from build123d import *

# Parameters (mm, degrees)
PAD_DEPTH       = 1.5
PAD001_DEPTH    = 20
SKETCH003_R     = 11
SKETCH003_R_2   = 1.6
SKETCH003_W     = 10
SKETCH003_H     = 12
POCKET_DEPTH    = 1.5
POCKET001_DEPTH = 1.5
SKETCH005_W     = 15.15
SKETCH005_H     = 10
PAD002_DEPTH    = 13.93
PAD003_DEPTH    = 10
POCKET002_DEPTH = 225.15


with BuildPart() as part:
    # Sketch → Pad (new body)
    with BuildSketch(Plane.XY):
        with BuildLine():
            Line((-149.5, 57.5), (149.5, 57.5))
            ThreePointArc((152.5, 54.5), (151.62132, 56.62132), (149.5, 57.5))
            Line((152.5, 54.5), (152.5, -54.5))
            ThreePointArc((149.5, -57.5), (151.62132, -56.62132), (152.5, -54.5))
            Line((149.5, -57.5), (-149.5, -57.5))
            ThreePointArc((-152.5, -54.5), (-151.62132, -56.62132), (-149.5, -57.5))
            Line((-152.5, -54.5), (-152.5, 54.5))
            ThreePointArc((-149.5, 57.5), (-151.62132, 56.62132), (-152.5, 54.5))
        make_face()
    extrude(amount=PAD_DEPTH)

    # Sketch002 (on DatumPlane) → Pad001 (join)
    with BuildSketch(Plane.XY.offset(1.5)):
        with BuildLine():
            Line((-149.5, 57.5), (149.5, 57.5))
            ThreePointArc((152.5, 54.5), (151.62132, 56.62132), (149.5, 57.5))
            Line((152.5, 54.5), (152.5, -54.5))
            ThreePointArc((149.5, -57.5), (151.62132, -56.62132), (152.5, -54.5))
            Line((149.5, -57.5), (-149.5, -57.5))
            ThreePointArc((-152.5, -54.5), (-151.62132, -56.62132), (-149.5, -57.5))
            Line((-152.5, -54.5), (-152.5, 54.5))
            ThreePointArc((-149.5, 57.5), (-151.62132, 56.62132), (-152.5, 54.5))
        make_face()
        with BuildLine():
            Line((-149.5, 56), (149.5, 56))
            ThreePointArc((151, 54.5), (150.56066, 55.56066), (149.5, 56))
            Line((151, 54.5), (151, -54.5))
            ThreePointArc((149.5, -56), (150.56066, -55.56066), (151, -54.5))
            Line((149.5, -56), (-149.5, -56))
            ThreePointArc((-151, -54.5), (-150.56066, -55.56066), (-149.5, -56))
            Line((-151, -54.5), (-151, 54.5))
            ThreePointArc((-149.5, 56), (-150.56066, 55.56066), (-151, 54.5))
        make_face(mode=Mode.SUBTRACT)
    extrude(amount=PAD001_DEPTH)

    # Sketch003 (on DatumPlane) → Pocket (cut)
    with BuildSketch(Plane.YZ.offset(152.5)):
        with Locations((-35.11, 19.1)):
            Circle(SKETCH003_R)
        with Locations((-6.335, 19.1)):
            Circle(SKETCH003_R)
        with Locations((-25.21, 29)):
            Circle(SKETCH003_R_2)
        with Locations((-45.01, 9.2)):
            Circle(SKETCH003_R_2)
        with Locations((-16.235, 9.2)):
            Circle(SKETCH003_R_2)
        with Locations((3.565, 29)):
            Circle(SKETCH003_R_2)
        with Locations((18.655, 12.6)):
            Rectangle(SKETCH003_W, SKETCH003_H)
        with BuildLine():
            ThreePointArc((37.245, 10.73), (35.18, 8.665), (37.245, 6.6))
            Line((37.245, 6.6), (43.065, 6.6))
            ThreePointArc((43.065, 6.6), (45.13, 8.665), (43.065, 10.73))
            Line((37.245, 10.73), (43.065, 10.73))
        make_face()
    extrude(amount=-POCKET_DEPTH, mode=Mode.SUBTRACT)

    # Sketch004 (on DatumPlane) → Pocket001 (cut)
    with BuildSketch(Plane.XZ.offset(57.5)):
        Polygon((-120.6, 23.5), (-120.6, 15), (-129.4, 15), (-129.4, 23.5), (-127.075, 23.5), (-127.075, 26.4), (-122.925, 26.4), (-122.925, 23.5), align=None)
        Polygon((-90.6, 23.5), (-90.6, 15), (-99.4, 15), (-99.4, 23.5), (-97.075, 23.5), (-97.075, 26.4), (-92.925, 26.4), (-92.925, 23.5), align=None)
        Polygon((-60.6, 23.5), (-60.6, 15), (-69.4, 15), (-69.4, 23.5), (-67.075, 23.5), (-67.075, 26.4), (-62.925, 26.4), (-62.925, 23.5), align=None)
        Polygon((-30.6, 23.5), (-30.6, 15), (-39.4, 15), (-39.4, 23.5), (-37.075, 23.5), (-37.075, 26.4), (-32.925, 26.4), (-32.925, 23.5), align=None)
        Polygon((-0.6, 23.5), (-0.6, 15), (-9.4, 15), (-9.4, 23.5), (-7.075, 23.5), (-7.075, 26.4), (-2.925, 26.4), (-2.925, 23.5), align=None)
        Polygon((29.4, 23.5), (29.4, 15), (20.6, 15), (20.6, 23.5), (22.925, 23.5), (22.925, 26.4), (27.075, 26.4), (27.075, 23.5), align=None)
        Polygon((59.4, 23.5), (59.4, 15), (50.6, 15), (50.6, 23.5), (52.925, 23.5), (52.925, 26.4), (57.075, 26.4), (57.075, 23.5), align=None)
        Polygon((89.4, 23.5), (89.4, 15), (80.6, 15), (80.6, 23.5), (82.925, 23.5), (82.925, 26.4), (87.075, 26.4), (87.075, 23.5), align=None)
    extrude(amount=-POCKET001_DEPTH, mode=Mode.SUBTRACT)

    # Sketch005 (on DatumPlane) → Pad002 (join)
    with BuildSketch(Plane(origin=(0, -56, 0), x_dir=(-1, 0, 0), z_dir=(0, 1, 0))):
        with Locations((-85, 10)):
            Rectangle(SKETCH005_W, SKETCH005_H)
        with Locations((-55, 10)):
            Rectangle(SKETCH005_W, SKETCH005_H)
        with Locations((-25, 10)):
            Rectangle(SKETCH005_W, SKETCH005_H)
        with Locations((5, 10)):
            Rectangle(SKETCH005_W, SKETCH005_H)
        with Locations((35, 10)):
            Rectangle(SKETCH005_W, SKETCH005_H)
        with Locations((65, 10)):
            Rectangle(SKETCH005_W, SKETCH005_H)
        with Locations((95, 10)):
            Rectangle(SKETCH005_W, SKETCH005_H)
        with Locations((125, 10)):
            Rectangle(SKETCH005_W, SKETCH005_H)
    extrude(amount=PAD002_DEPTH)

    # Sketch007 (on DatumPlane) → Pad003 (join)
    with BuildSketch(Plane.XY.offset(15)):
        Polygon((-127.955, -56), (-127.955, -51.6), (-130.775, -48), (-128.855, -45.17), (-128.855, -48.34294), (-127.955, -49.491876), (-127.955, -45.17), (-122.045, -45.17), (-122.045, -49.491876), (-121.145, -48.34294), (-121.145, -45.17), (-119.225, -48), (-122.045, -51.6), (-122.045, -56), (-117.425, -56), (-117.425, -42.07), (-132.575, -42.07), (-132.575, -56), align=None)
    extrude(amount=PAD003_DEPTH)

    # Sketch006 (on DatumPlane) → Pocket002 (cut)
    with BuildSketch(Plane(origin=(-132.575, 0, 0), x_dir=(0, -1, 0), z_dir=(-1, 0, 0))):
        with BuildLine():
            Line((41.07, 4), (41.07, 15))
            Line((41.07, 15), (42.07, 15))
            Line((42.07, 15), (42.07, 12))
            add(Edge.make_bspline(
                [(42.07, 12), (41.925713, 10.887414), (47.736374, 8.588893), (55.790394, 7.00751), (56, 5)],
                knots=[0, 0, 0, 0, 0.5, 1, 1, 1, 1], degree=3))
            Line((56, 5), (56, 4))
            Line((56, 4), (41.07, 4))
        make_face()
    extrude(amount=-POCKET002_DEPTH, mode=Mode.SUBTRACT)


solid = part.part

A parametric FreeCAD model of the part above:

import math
import FreeCAD as App
import Part
import Sketcher
Q = App.Units.Quantity


def add_polygon(sketch, points):
    """Adds a closed chain of lines whose ends are joined by coincident constraints."""
    first, n = sketch.GeometryCount, len(points)
    for a, b in zip(points, points[1:] + points[:1]):
        sketch.addGeometry(Part.LineSegment(App.Vector(*a, 0), App.Vector(*b, 0)), False)
    for i in range(n):
        sketch.addConstraint(Sketcher.Constraint("Coincident", first + i, 2, first + (i + 1) % n, 1))

doc = App.newDocument("Part")
body = doc.addObject("PartDesign::Body", "Body")

# Sketch on XY plane
sketch1 = body.newObject("Sketcher::SketchObject", "Sketch")
sketch1.AttachmentSupport = (doc.getObject("XY_Plane"), [""])
sketch1.MapMode = "FlatFace"
sketch1.addGeometry([
    Part.LineSegment(App.Vector(149.5, 57.5, 0), App.Vector(-149.5, 57.5, 0)),  # 0
    Part.ArcOfCircle(Part.Circle(App.Vector(-149.5, 54.5, 0), App.Vector(0, 0, 1), 3), math.radians(90), math.radians(180)),  # 1
    Part.LineSegment(App.Vector(-152.5, 54.5, 0), App.Vector(-152.5, -54.5, 0)),  # 2
    Part.ArcOfCircle(Part.Circle(App.Vector(-149.5, -54.5, 0), App.Vector(0, 0, 1), 3), math.radians(-180), math.radians(-90)),  # 3
    Part.LineSegment(App.Vector(-149.5, -57.5, 0), App.Vector(149.5, -57.5, 0)),  # 4
    Part.ArcOfCircle(Part.Circle(App.Vector(149.5, -54.5, 0), App.Vector(0, 0, 1), 3), math.radians(-90), math.radians(0)),  # 5
    Part.LineSegment(App.Vector(152.5, -54.5, 0), App.Vector(152.5, 54.5, 0)),  # 6
    Part.ArcOfCircle(Part.Circle(App.Vector(149.5, 54.5, 0), App.Vector(0, 0, 1), 3), math.radians(0), math.radians(90)),  # 7
], False)
sketch1.addConstraint([
    Sketcher.Constraint("Tangent", 0, 2, 1, 1),
    Sketcher.Constraint("Tangent", 1, 2, 2, 1),
    Sketcher.Constraint("Tangent", 2, 2, 3, 1),
    Sketcher.Constraint("Tangent", 3, 2, 4, 1),
    Sketcher.Constraint("Tangent", 4, 2, 5, 1),
    Sketcher.Constraint("Tangent", 5, 2, 6, 1),
    Sketcher.Constraint("Tangent", 6, 2, 7, 1),
    Sketcher.Constraint("Tangent", 7, 2, 0, 1),
    Sketcher.Constraint("Horizontal", 0),
    Sketcher.Constraint("Vertical", 2),
    Sketcher.Constraint("Horizontal", 4),
    Sketcher.Constraint("Vertical", 6),
    Sketcher.Constraint("Equal", 1, 3),
    Sketcher.Constraint("Equal", 3, 5),
    Sketcher.Constraint("Equal", 5, 7),
    Sketcher.Constraint("Symmetric", 1, 3, 5, 3, -1, 1),
    Sketcher.Constraint("Radius", 1, Q("3.000001 mm")),
    Sketcher.Constraint("DistanceX", 0, 2, 0, 1, Q("299 mm")),
    Sketcher.Constraint("DistanceY", 2, 2, 2, 1, Q("109 mm")),
])
pad1 = body.newObject("PartDesign::Pad", "Pad")
pad1.Profile = sketch1
pad1.Length = 1.5

# Sketch on XY plane
sketch2 = body.newObject("Sketcher::SketchObject", "Sketch001")
sketch2.AttachmentSupport = (doc.getObject("XY_Plane"), [""])
sketch2.MapMode = "FlatFace"
sketch2.AttachmentOffset = App.Placement(App.Vector(0, 0, 1.5), App.Rotation())
sketch2.addGeometry([
    Part.LineSegment(App.Vector(149.5, 57.5, 0), App.Vector(-149.5, 57.5, 0)),  # 0
    Part.ArcOfCircle(Part.Circle(App.Vector(-149.5, 54.5, 0), App.Vector(0, 0, 1), 3), math.radians(90), math.radians(180)),  # 1
    Part.LineSegment(App.Vector(-152.5, 54.5, 0), App.Vector(-152.5, -54.5, 0)),  # 2
    Part.ArcOfCircle(Part.Circle(App.Vector(-149.5, -54.5, 0), App.Vector(0, 0, 1), 3), math.radians(-180), math.radians(-90)),  # 3
    Part.LineSegment(App.Vector(-149.5, -57.5, 0), App.Vector(149.5, -57.5, 0)),  # 4
    Part.ArcOfCircle(Part.Circle(App.Vector(149.5, -54.5, 0), App.Vector(0, 0, 1), 3), math.radians(-90), math.radians(0)),  # 5
    Part.LineSegment(App.Vector(152.5, -54.5, 0), App.Vector(152.5, 54.5, 0)),  # 6
    Part.ArcOfCircle(Part.Circle(App.Vector(149.5, 54.5, 0), App.Vector(0, 0, 1), 3), math.radians(0), math.radians(90)),  # 7
    Part.LineSegment(App.Vector(-149.5, 56, 0), App.Vector(149.5, 56, 0)),  # 8
    Part.ArcOfCircle(Part.Circle(App.Vector(149.5, 54.5, 0), App.Vector(0, 0, 1), 1.5), math.radians(0), math.radians(90)),  # 9
    Part.LineSegment(App.Vector(151, 54.5, 0), App.Vector(151, -54.5, 0)),  # 10
    Part.ArcOfCircle(Part.Circle(App.Vector(149.5, -54.5, 0), App.Vector(0, 0, 1), 1.5), math.radians(-90), math.radians(0)),  # 11
    Part.LineSegment(App.Vector(149.5, -56, 0), App.Vector(-149.5, -56, 0)),  # 12
    Part.ArcOfCircle(Part.Circle(App.Vector(-149.5, -54.5, 0), App.Vector(0, 0, 1), 1.5), math.radians(-180), math.radians(-90)),  # 13
    Part.LineSegment(App.Vector(-151, -54.5, 0), App.Vector(-151, 54.5, 0)),  # 14
    Part.ArcOfCircle(Part.Circle(App.Vector(-149.5, 54.5, 0), App.Vector(0, 0, 1), 1.5), math.radians(90), math.radians(180)),  # 15
], False)
sketch2.addConstraint([
    Sketcher.Constraint("Tangent", 0, 2, 1, 1),
    Sketcher.Constraint("Tangent", 1, 2, 2, 1),
    Sketcher.Constraint("Tangent", 2, 2, 3, 1),
    Sketcher.Constraint("Tangent", 3, 2, 4, 1),
    Sketcher.Constraint("Tangent", 4, 2, 5, 1),
    Sketcher.Constraint("Tangent", 5, 2, 6, 1),
    Sketcher.Constraint("Tangent", 6, 2, 7, 1),
    Sketcher.Constraint("Tangent", 7, 2, 0, 1),
    Sketcher.Constraint("Tangent", 8, 2, 9, 2),
    Sketcher.Constraint("Tangent", 9, 1, 10, 1),
    Sketcher.Constraint("Tangent", 10, 2, 11, 2),
    Sketcher.Constraint("Tangent", 11, 1, 12, 1),
    Sketcher.Constraint("Tangent", 12, 2, 13, 2),
    Sketcher.Constraint("Tangent", 13, 1, 14, 1),
    Sketcher.Constraint("Tangent", 14, 2, 15, 2),
    Sketcher.Constraint("Tangent", 15, 1, 8, 1),
    Sketcher.Constraint("Horizontal", 0),
    Sketcher.Constraint("Vertical", 2),
    Sketcher.Constraint("Horizontal", 4),
    Sketcher.Constraint("Vertical", 6),
    Sketcher.Constraint("Horizontal", 8),
    Sketcher.Constraint("Vertical", 10),
    Sketcher.Constraint("Horizontal", 12),
    Sketcher.Constraint("Vertical", 14),
    Sketcher.Constraint("Coincident", 9, 3, 7, 3),
    Sketcher.Constraint("Coincident", 11, 3, 5, 3),
    Sketcher.Constraint("Coincident", 13, 3, 3, 3),
    Sketcher.Constraint("Equal", 1, 3),
    Sketcher.Constraint("Equal", 3, 5),
    Sketcher.Constraint("Equal", 5, 7),
    Sketcher.Constraint("Equal", 13, 15),
    Sketcher.Constraint("Symmetric", 1, 3, 5, 3, -1, 1),
    Sketcher.Constraint("Radius", 1, Q("3.000001 mm")),
    Sketcher.Constraint("Radius", 9, Q("1.500001 mm")),
    Sketcher.Constraint("DistanceX", 0, 2, 0, 1, Q("299 mm")),
    Sketcher.Constraint("DistanceY", 2, 2, 2, 1, Q("109 mm")),
])
pad2 = body.newObject("PartDesign::Pad", "Pad001")
pad2.Profile = sketch2
pad2.Length = 20

# Sketch on YZ plane
sketch3 = body.newObject("Sketcher::SketchObject", "Sketch002")
sketch3.AttachmentSupport = (doc.getObject("YZ_Plane"), [""])
sketch3.MapMode = "FlatFace"
sketch3.AttachmentOffset = App.Placement(App.Vector(0, 0, 152.5), App.Rotation())
sketch3.addGeometry(Part.Circle(App.Vector(-35.1, 19.1, 0), App.Vector(0, 0, 1), 11), False)  # 0
sketch3.addGeometry(Part.Circle(App.Vector(-6.3, 19.1, 0), App.Vector(0, 0, 1), 11), False)  # 1
sketch3.addGeometry(Part.Circle(App.Vector(-25.2, 29, 0), App.Vector(0, 0, 1), 1.6), False)  # 2
sketch3.addGeometry(Part.Circle(App.Vector(-45, 9.2, 0), App.Vector(0, 0, 1), 1.6), False)  # 3
sketch3.addGeometry(Part.Circle(App.Vector(-16.2, 9.2, 0), App.Vector(0, 0, 1), 1.6), False)  # 4
sketch3.addGeometry(Part.Circle(App.Vector(3.6, 29, 0), App.Vector(0, 0, 1), 1.6), False)  # 5
add_polygon(sketch3, [(13.7, 18.6), (13.7, 6.6), (23.7, 6.6), (23.7, 18.6)])  # lines 6-9
sketch3.addGeometry(Part.ArcOfCircle(Part.Circle(App.Vector(37.2, 8.7, 0), App.Vector(0, 0, 1), 2.1), math.radians(90), math.radians(270)), False)  # 10
sketch3.addGeometry(Part.LineSegment(App.Vector(37.2, 6.6, 0), App.Vector(43.1, 6.6, 0)), False)  # 11
sketch3.addGeometry(Part.ArcOfCircle(Part.Circle(App.Vector(43.1, 8.7, 0), App.Vector(0, 0, 1), 2.1), math.radians(-90), math.radians(90)), False)  # 12
sketch3.addGeometry(Part.LineSegment(App.Vector(43.1, 10.7, 0), App.Vector(37.2, 10.7, 0)), False)  # 13
sketch3.addConstraint([
    Sketcher.Constraint("Tangent", 10, 2, 11, 1),
    Sketcher.Constraint("Tangent", 11, 2, 12, 1),
    Sketcher.Constraint("Tangent", 12, 2, 13, 1),
    Sketcher.Constraint("Tangent", 13, 2, 10, 1),
    Sketcher.Constraint("Vertical", 6),
    Sketcher.Constraint("Horizontal", 7),
    Sketcher.Constraint("Vertical", 8),
    Sketcher.Constraint("Horizontal", 9),
    Sketcher.Constraint("Horizontal", 11),
    Sketcher.Constraint("Horizontal", 13),
    Sketcher.Constraint("Equal", 0, 1),
    Sketcher.Constraint("Equal", 2, 3),
    Sketcher.Constraint("Equal", 3, 4),
    Sketcher.Constraint("Equal", 4, 5),
    Sketcher.Constraint("Horizontal", 0, 3, 1, 3),
    Sketcher.Constraint("Horizontal", 3, 3, 4, 3),
    Sketcher.Constraint("Horizontal", 2, 3, 5, 3),
    Sketcher.Constraint("Horizontal", 7, 2, 10, 2),
    Sketcher.Constraint("Diameter", 0, Q("22 mm")),
    Sketcher.Constraint("Diameter", 2, Q("3.2 mm")),
    Sketcher.Constraint("DistanceX", 7, 1, 7, 2, Q("10 mm")),
    Sketcher.Constraint("DistanceY", 6, 2, 6, 1, Q("12 mm")),
    Sketcher.Constraint("DistanceY", -1, 1, 2, 3, Q("29 mm")),
    Sketcher.Constraint("Radius", 10, Q("2.065 mm")),
    Sketcher.Constraint("DistanceX", 11, 1, 11, 2, Q("5.82 mm")),
    Sketcher.Constraint("DistanceY", -1, 1, 0, 3, Q("19.1 mm")),
    Sketcher.Constraint("DistanceY", -1, 1, 3, 3, Q("9.2 mm")),
    Sketcher.Constraint("DistanceY", -1, 1, 6, 2, Q("6.6 mm")),
    Sketcher.Constraint("DistanceX", 0, 3, 2, 3, Q("9.9 mm")),
    Sketcher.Constraint("DistanceX", 3, 3, 0, 3, Q("9.9 mm")),
    Sketcher.Constraint("DistanceX", 4, 3, 1, 3, Q("9.9 mm")),
    Sketcher.Constraint("DistanceX", 1, 3, 5, 3, Q("9.9 mm")),
    Sketcher.Constraint("DistanceX", 5, 3, 12, 3, Q("39.5 mm")),
    Sketcher.Constraint("DistanceX", 0, 3, -1, 1, Q("35.11 mm")),
    Sketcher.Constraint("DistanceX", 1, 3, 6, 2, Q("19.99 mm")),
    Sketcher.Constraint("DistanceX", 1, 3, -1, 1, Q("6.335 mm")),
])
pocket1 = body.newObject("PartDesign::Pocket", "Pocket")
pocket1.Profile = sketch3
pocket1.Length = 1.5

# Sketch on XZ plane
sketch4 = body.newObject("Sketcher::SketchObject", "Sketch003")
sketch4.AttachmentSupport = (doc.getObject("XZ_Plane"), [""])
sketch4.MapMode = "FlatFace"
sketch4.AttachmentOffset = App.Placement(App.Vector(0, 0, 57.5), App.Rotation())
add_polygon(sketch4, [(-120.6, 15), (-120.6, 23.5), (-122.9, 23.5), (-122.9, 26.4), (-127.1, 26.4), (-127.1, 23.5), (-129.4, 23.5), (-129.4, 15)])  # lines 0-7
add_polygon(sketch4, [(-90.6, 15), (-90.6, 23.5), (-92.9, 23.5), (-92.9, 26.4), (-97.1, 26.4), (-97.1, 23.5), (-99.4, 23.5), (-99.4, 15)])  # lines 8-15
add_polygon(sketch4, [(-60.6, 15), (-60.6, 23.5), (-62.9, 23.5), (-62.9, 26.4), (-67.1, 26.4), (-67.1, 23.5), (-69.4, 23.5), (-69.4, 15)])  # lines 16-23
add_polygon(sketch4, [(-30.6, 15), (-30.6, 23.5), (-32.9, 23.5), (-32.9, 26.4), (-37.1, 26.4), (-37.1, 23.5), (-39.4, 23.5), (-39.4, 15)])  # lines 24-31
add_polygon(sketch4, [(-0.6, 15), (-0.6, 23.5), (-2.9, 23.5), (-2.9, 26.4), (-7.1, 26.4), (-7.1, 23.5), (-9.4, 23.5), (-9.4, 15)])  # lines 32-39
add_polygon(sketch4, [(29.4, 15), (29.4, 23.5), (27.1, 23.5), (27.1, 26.4), (22.9, 26.4), (22.9, 23.5), (20.6, 23.5), (20.6, 15)])  # lines 40-47
add_polygon(sketch4, [(59.4, 15), (59.4, 23.5), (57.1, 23.5), (57.1, 26.4), (52.9, 26.4), (52.9, 23.5), (50.6, 23.5), (50.6, 15)])  # lines 48-55
add_polygon(sketch4, [(89.4, 15), (89.4, 23.5), (87.1, 23.5), (87.1, 26.4), (82.9, 26.4), (82.9, 23.5), (80.6, 23.5), (80.6, 15)])  # lines 56-63
sketch4.addConstraint([
    Sketcher.Constraint("Vertical", 0),
    Sketcher.Constraint("Horizontal", 1),
    Sketcher.Constraint("Vertical", 2),
    Sketcher.Constraint("Horizontal", 3),
    Sketcher.Constraint("Vertical", 4),
    Sketcher.Constraint("Horizontal", 5),
    Sketcher.Constraint("Vertical", 6),
    Sketcher.Constraint("Horizontal", 7),
    Sketcher.Constraint("Vertical", 8),
    Sketcher.Constraint("Horizontal", 9),
    Sketcher.Constraint("Vertical", 10),
    Sketcher.Constraint("Horizontal", 11),
    Sketcher.Constraint("Vertical", 12),
    Sketcher.Constraint("Horizontal", 13),
    Sketcher.Constraint("Vertical", 14),
    Sketcher.Constraint("Horizontal", 15),
    Sketcher.Constraint("Vertical", 16),
    Sketcher.Constraint("Horizontal", 17),
    Sketcher.Constraint("Vertical", 18),
    Sketcher.Constraint("Horizontal", 19),
    Sketcher.Constraint("Vertical", 20),
    Sketcher.Constraint("Horizontal", 21),
    Sketcher.Constraint("Vertical", 22),
    Sketcher.Constraint("Horizontal", 23),
    Sketcher.Constraint("Vertical", 24),
    Sketcher.Constraint("Horizontal", 25),
    Sketcher.Constraint("Vertical", 26),
    Sketcher.Constraint("Horizontal", 27),
    Sketcher.Constraint("Vertical", 28),
    Sketcher.Constraint("Horizontal", 29),
    Sketcher.Constraint("Vertical", 30),
    Sketcher.Constraint("Horizontal", 31),
    Sketcher.Constraint("Vertical", 32),
    Sketcher.Constraint("Horizontal", 33),
    Sketcher.Constraint("Vertical", 34),
    Sketcher.Constraint("Horizontal", 35),
    Sketcher.Constraint("Vertical", 36),
    Sketcher.Constraint("Horizontal", 37),
    Sketcher.Constraint("Vertical", 38),
    Sketcher.Constraint("Horizontal", 39),
    Sketcher.Constraint("Vertical", 40),
    Sketcher.Constraint("Horizontal", 41),
    Sketcher.Constraint("Vertical", 42),
    Sketcher.Constraint("Horizontal", 43),
    Sketcher.Constraint("Vertical", 44),
    Sketcher.Constraint("Horizontal", 45),
    Sketcher.Constraint("Vertical", 46),
    Sketcher.Constraint("Horizontal", 47),
    Sketcher.Constraint("Vertical", 48),
    Sketcher.Constraint("Horizontal", 49),
    Sketcher.Constraint("Vertical", 50),
    Sketcher.Constraint("Horizontal", 51),
    Sketcher.Constraint("Vertical", 52),
    Sketcher.Constraint("Horizontal", 53),
    Sketcher.Constraint("Vertical", 54),
    Sketcher.Constraint("Horizontal", 55),
    Sketcher.Constraint("Vertical", 56),
    Sketcher.Constraint("Horizontal", 57),
    Sketcher.Constraint("Vertical", 58),
    Sketcher.Constraint("Horizontal", 59),
    Sketcher.Constraint("Vertical", 60),
    Sketcher.Constraint("Horizontal", 61),
    Sketcher.Constraint("Vertical", 62),
    Sketcher.Constraint("Horizontal", 63),
    Sketcher.Constraint("Horizontal", 1, 2, 4, 2),
    Sketcher.Constraint("Horizontal", 5, 2, 8, 2),
    Sketcher.Constraint("Horizontal", 3, 2, 10, 2),
    Sketcher.Constraint("Horizontal", 9, 2, 12, 2),
    Sketcher.Constraint("Horizontal", 7, 2, 14, 2),
    Sketcher.Constraint("Horizontal", 13, 2, 16, 2),
    Sketcher.Constraint("Horizontal", 11, 2, 18, 2),
    Sketcher.Constraint("Horizontal", 17, 2, 20, 2),
    Sketcher.Constraint("Horizontal", 15, 2, 22, 2),
    Sketcher.Constraint("Horizontal", 21, 2, 24, 2),
    Sketcher.Constraint("Horizontal", 19, 2, 26, 2),
    Sketcher.Constraint("Horizontal", 25, 2, 28, 2),
    Sketcher.Constraint("Horizontal", 23, 2, 30, 2),
    Sketcher.Constraint("Horizontal", 29, 2, 32, 2),
    Sketcher.Constraint("Horizontal", 27, 2, 34, 2),
    Sketcher.Constraint("Horizontal", 33, 2, 36, 2),
    Sketcher.Constraint("Horizontal", 31, 2, 38, 2),
    Sketcher.Constraint("Horizontal", 37, 2, 40, 2),
    Sketcher.Constraint("Horizontal", 35, 2, 42, 2),
    Sketcher.Constraint("Horizontal", 41, 2, 44, 2),
    Sketcher.Constraint("Horizontal", 39, 2, 46, 2),
    Sketcher.Constraint("Horizontal", 45, 2, 48, 2),
    Sketcher.Constraint("Horizontal", 43, 2, 50, 2),
    Sketcher.Constraint("Horizontal", 49, 2, 52, 2),
    Sketcher.Constraint("Horizontal", 47, 2, 54, 2),
    Sketcher.Constraint("Horizontal", 53, 2, 56, 2),
    Sketcher.Constraint("Horizontal", 51, 2, 58, 2),
    Sketcher.Constraint("Horizontal", 57, 2, 60, 2),
    Sketcher.Constraint("Horizontal", 55, 2, 62, 2),
    Sketcher.Constraint("Equal", 1, 5),
    Sketcher.Constraint("Equal", 5, 9),
    Sketcher.Constraint("Equal", 3, 11),
    Sketcher.Constraint("Equal", 9, 13),
    Sketcher.Constraint("Equal", 13, 17),
    Sketcher.Constraint("Equal", 11, 19),
    Sketcher.Constraint("Equal", 17, 21),
    Sketcher.Constraint("Equal", 21, 25),
    Sketcher.Constraint("Equal", 19, 27),
    Sketcher.Constraint("Equal", 25, 29),
    Sketcher.Constraint("Equal", 29, 33),
    Sketcher.Constraint("Equal", 27, 35),
    Sketcher.Constraint("Equal", 33, 37),
    Sketcher.Constraint("Equal", 37, 41),
    Sketcher.Constraint("Equal", 35, 43),
    Sketcher.Constraint("Equal", 41, 45),
    Sketcher.Constraint("Equal", 45, 49),
    Sketcher.Constraint("Equal", 43, 51),
    Sketcher.Constraint("Equal", 49, 53),
    Sketcher.Constraint("Equal", 53, 57),
    Sketcher.Constraint("Equal", 51, 59),
    Sketcher.Constraint("Equal", 57, 61),
    Sketcher.Constraint("DistanceX", 7, 1, 7, 2, Q("8.8 mm")),
    Sketcher.Constraint("DistanceY", 0, 1, 0, 2, Q("8.5 mm")),
    Sketcher.Constraint("DistanceY", 2, 1, 2, 2, Q("2.9 mm")),
    Sketcher.Constraint("DistanceY", -1, 1, 6, 2, Q("15 mm")),
    Sketcher.Constraint("DistanceX", 3, 2, 3, 1, Q("4.15 mm")),
    Sketcher.Constraint("DistanceX", 0, 2, -1, 1, Q("120.6 mm")),
    Sketcher.Constraint("DistanceX", 8, 2, -1, 1, Q("90.6 mm")),
    Sketcher.Constraint("DistanceX", 16, 2, -1, 1, Q("60.6 mm")),
    Sketcher.Constraint("DistanceX", 24, 2, -1, 1, Q("30.6 mm")),
    Sketcher.Constraint("DistanceX", 32, 2, -1, 1, Q("0.6 mm")),
    Sketcher.Constraint("DistanceX", -1, 1, 40, 2, Q("29.4 mm")),
    Sketcher.Constraint("DistanceX", -1, 1, 48, 2, Q("59.4 mm")),
    Sketcher.Constraint("DistanceX", -1, 1, 56, 2, Q("89.4 mm")),
])
pocket2 = body.newObject("PartDesign::Pocket", "Pocket001")
pocket2.Profile = sketch4
pocket2.Length = 1.5

# Sketch on XZ plane
sketch5 = body.newObject("Sketcher::SketchObject", "Sketch004")
sketch5.AttachmentSupport = (doc.getObject("XZ_Plane"), [""])
sketch5.MapMode = "FlatFace"
sketch5.AttachmentOffset = App.Placement(App.Vector(0, 0, 56), App.Rotation())
add_polygon(sketch5, [(93, 15), (93, 5), (77, 5), (77, 15)])  # lines 0-3
add_polygon(sketch5, [(63, 15), (63, 5), (47, 5), (47, 15)])  # lines 4-7
add_polygon(sketch5, [(33, 15), (33, 5), (17, 5), (17, 15)])  # lines 8-11
add_polygon(sketch5, [(3, 15), (3, 5), (-13, 5), (-13, 15)])  # lines 12-15
add_polygon(sketch5, [(-27, 15), (-27, 5), (-43, 5), (-43, 15)])  # lines 16-19
add_polygon(sketch5, [(-57, 15), (-57, 5), (-73, 5), (-73, 15)])  # lines 20-23
add_polygon(sketch5, [(-87, 15), (-87, 5), (-103, 5), (-103, 15)])  # lines 24-27
add_polygon(sketch5, [(-117, 15), (-117, 5), (-133, 5), (-133, 15)])  # lines 28-31
sketch5.addConstraint([
    Sketcher.Constraint("Vertical", 0),
    Sketcher.Constraint("Horizontal", 1),
    Sketcher.Constraint("Vertical", 2),
    Sketcher.Constraint("Horizontal", 3),
    Sketcher.Constraint("Vertical", 4),
    Sketcher.Constraint("Horizontal", 5),
    Sketcher.Constraint("Vertical", 6),
    Sketcher.Constraint("Horizontal", 7),
    Sketcher.Constraint("Vertical", 8),
    Sketcher.Constraint("Horizontal", 9),
    Sketcher.Constraint("Vertical", 10),
    Sketcher.Constraint("Horizontal", 11),
    Sketcher.Constraint("Vertical", 12),
    Sketcher.Constraint("Horizontal", 13),
    Sketcher.Constraint("Vertical", 14),
    Sketcher.Constraint("Horizontal", 15),
    Sketcher.Constraint("Vertical", 16),
    Sketcher.Constraint("Horizontal", 17),
    Sketcher.Constraint("Vertical", 18),
    Sketcher.Constraint("Horizontal", 19),
    Sketcher.Constraint("Vertical", 20),
    Sketcher.Constraint("Horizontal", 21),
    Sketcher.Constraint("Vertical", 22),
    Sketcher.Constraint("Horizontal", 23),
    Sketcher.Constraint("Vertical", 24),
    Sketcher.Constraint("Horizontal", 25),
    Sketcher.Constraint("Vertical", 26),
    Sketcher.Constraint("Horizontal", 27),
    Sketcher.Constraint("Vertical", 28),
    Sketcher.Constraint("Horizontal", 29),
    Sketcher.Constraint("Vertical", 30),
    Sketcher.Constraint("Horizontal", 31),
    Sketcher.Constraint("Horizontal", 1, 2, 4, 2),
    Sketcher.Constraint("Horizontal", 3, 2, 6, 2),
    Sketcher.Constraint("Horizontal", 5, 2, 8, 2),
    Sketcher.Constraint("Horizontal", 7, 2, 10, 2),
    Sketcher.Constraint("Horizontal", 9, 2, 12, 2),
    Sketcher.Constraint("Horizontal", 11, 2, 14, 2),
    Sketcher.Constraint("Horizontal", 13, 2, 16, 2),
    Sketcher.Constraint("Horizontal", 15, 2, 18, 2),
    Sketcher.Constraint("Horizontal", 17, 2, 20, 2),
    Sketcher.Constraint("Horizontal", 19, 2, 22, 2),
    Sketcher.Constraint("Horizontal", 21, 2, 24, 2),
    Sketcher.Constraint("Horizontal", 23, 2, 26, 2),
    Sketcher.Constraint("Horizontal", 25, 2, 28, 2),
    Sketcher.Constraint("Horizontal", 27, 2, 30, 2),
    Sketcher.Constraint("Equal", 3, 5),
    Sketcher.Constraint("Equal", 7, 9),
    Sketcher.Constraint("Equal", 11, 13),
    Sketcher.Constraint("Equal", 15, 17),
    Sketcher.Constraint("Equal", 19, 21),
    Sketcher.Constraint("Equal", 23, 25),
    Sketcher.Constraint("Equal", 27, 29),
    Sketcher.Constraint("DistanceY", 0, 2, 0, 1, Q("10 mm")),
    Sketcher.Constraint("DistanceY", -1, 1, 0, 2, Q("5 mm")),
    Sketcher.Constraint("DistanceX", 4, 2, 0, 2, Q("30 mm")),
    Sketcher.Constraint("DistanceX", 8, 2, 4, 2, Q("30 mm")),
    Sketcher.Constraint("DistanceX", 12, 2, 8, 2, Q("30 mm")),
    Sketcher.Constraint("DistanceX", 16, 2, 12, 2, Q("30 mm")),
    Sketcher.Constraint("DistanceX", 20, 2, 16, 2, Q("30 mm")),
    Sketcher.Constraint("DistanceX", 24, 2, 20, 2, Q("30 mm")),
    Sketcher.Constraint("DistanceX", 28, 2, 24, 2, Q("30 mm")),
    Sketcher.Constraint("DistanceX", 1, 2, 1, 1, Q("15.15 mm")),
    Sketcher.Constraint("DistanceX", -1, 1, 0, 2, Q("92.575 mm")),
])
pad3 = body.newObject("PartDesign::Pad", "Pad002")
pad3.Profile = sketch5
pad3.Length = 13.93
pad3.Reversed = True

# Sketch on XY plane
sketch6 = body.newObject("Sketcher::SketchObject", "Sketch005")
sketch6.AttachmentSupport = (doc.getObject("XY_Plane"), [""])
sketch6.MapMode = "FlatFace"
sketch6.AttachmentOffset = App.Placement(App.Vector(0, 0, 15), App.Rotation())
add_polygon(sketch6, [(-128, -56), (-128, -51.6), (-130.8, -48), (-128.9, -45.2), (-128.9, -48.3), (-128, -49.5), (-128, -45.2), (-122, -45.2), (-122, -49.5), (-121.1, -48.3), (-121.1, -45.2), (-119.2, -48), (-122, -51.6), (-122, -56), (-117.4, -56), (-117.4, -42.1), (-132.6, -42.1), (-132.6, -56)])  # lines 0-17
sketch6.addConstraint([
    Sketcher.Constraint("Vertical", 0),
    Sketcher.Constraint("Vertical", 3),
    Sketcher.Constraint("Vertical", 5),
    Sketcher.Constraint("Horizontal", 6),
    Sketcher.Constraint("Vertical", 7),
    Sketcher.Constraint("Vertical", 9),
    Sketcher.Constraint("Vertical", 12),
    Sketcher.Constraint("Horizontal", 13),
    Sketcher.Constraint("Vertical", 14),
    Sketcher.Constraint("Horizontal", 15),
    Sketcher.Constraint("Vertical", 16),
    Sketcher.Constraint("Horizontal", 17),
    Sketcher.Constraint("Parallel", 1, 4),
    Sketcher.Constraint("Parallel", 8, 11),
    Sketcher.Constraint("Horizontal", 2, 2, 5, 2),
    Sketcher.Constraint("Horizontal", 4, 2, 7, 2),
    Sketcher.Constraint("Horizontal", 3, 2, 8, 2),
    Sketcher.Constraint("Horizontal", 6, 2, 9, 2),
    Sketcher.Constraint("Horizontal", 1, 2, 10, 2),
    Sketcher.Constraint("Horizontal", 0, 2, 11, 2),
    Sketcher.Constraint("Horizontal", 13, 2, 16, 2),
    Sketcher.Constraint("Vertical", 0, 2, 4, 2),
    Sketcher.Constraint("Vertical", 7, 2, 11, 2),
    Sketcher.Constraint("Equal", 13, 17),
    Sketcher.Constraint("Equal", 4, 8),
    Sketcher.Constraint("DistanceY", 0, 1, 0, 2, Q("4.4 mm")),
    Sketcher.Constraint("DistanceY", 1, 2, -1, 1, Q("48 mm")),
    Sketcher.Constraint("DistanceY", 12, 2, -1, 1, Q("56 mm")),
    Sketcher.Constraint("DistanceX", 6, 1, 6, 2, Q("5.91 mm")),
    Sketcher.Constraint("DistanceX", 13, 1, 13, 2, Q("4.62 mm")),
    Sketcher.Constraint("DistanceY", 14, 1, 14, 2, Q("13.93 mm")),
    Sketcher.Constraint("DistanceX", 2, 2, 0, 2, Q("0.9 mm")),
    Sketcher.Constraint("DistanceX", 10, 2, 13, 2, Q("1.8 mm")),
    Sketcher.Constraint("DistanceY", 9, 2, 14, 2, Q("3.1 mm")),
    Sketcher.Constraint("DistanceX", 0, 2, -1, 1, Q("127.955 mm")),
    Sketcher.Constraint("DistanceY", 3, 2, 3, 1, Q("3.17294 mm")),
])
pad4 = body.newObject("PartDesign::Pad", "Pad003")
pad4.Profile = sketch6
pad4.Length = 10

# Sketch on YZ plane
sketch7 = body.newObject("Sketcher::SketchObject", "Sketch006")
sketch7.AttachmentSupport = (doc.getObject("YZ_Plane"), [""])
sketch7.MapMode = "FlatFace"
sketch7.AttachmentOffset = App.Placement(App.Vector(0, 0, -132.575), App.Rotation())
sketch7.addGeometry([
    Part.LineSegment(App.Vector(-41.07, 15, 0), App.Vector(-41.07, 4, 0)),  # 0
    Part.LineSegment(App.Vector(-41.07, 4, 0), App.Vector(-56, 4, 0)),  # 1
    Part.LineSegment(App.Vector(-56, 4, 0), App.Vector(-56, 5, 0)),  # 2
    Part.BSplineCurve([App.Vector(-42.07, 12, 0), App.Vector(-41.925713, 10.887414, 0), App.Vector(-47.736374, 8.588893, 0), App.Vector(-55.790394, 7.00751, 0), App.Vector(-56, 5, 0)], [4, 1, 4], [0, 0.5, 1], False, 3, [1, 1, 1, 1, 1], False),  # 3
    Part.LineSegment(App.Vector(-42.07, 12, 0), App.Vector(-42.07, 15, 0)),  # 4
    Part.LineSegment(App.Vector(-42.07, 15, 0), App.Vector(-41.07, 15, 0)),  # 5
], False)
sketch7.addConstraint([
    Sketcher.Constraint("Block", 3),
    Sketcher.Constraint("Coincident", 0, 2, 1, 1),
    Sketcher.Constraint("Coincident", 1, 2, 2, 1),
    Sketcher.Constraint("Coincident", 2, 2, 3, 2),
    Sketcher.Constraint("Coincident", 3, 1, 4, 1),
    Sketcher.Constraint("Coincident", 4, 2, 5, 1),
    Sketcher.Constraint("Coincident", 5, 2, 0, 1),
    Sketcher.Constraint("Vertical", 0),
    Sketcher.Constraint("Horizontal", 1),
    Sketcher.Constraint("Vertical", 2),
    Sketcher.Constraint("Vertical", 4),
    Sketcher.Constraint("Horizontal", 5),
    Sketcher.Constraint("Equal", 5, 2),
    Sketcher.Constraint("DistanceX", 5, 1, 5, 2, Q("1 mm")),
    Sketcher.Constraint("DistanceY", 0, 2, 0, 1, Q("11 mm")),
])
pocket3 = body.newObject("PartDesign::Pocket", "Pocket002")
pocket3.Profile = sketch7
pocket3.Length = 225.15
pocket3.Reversed = True

doc.recompute()
